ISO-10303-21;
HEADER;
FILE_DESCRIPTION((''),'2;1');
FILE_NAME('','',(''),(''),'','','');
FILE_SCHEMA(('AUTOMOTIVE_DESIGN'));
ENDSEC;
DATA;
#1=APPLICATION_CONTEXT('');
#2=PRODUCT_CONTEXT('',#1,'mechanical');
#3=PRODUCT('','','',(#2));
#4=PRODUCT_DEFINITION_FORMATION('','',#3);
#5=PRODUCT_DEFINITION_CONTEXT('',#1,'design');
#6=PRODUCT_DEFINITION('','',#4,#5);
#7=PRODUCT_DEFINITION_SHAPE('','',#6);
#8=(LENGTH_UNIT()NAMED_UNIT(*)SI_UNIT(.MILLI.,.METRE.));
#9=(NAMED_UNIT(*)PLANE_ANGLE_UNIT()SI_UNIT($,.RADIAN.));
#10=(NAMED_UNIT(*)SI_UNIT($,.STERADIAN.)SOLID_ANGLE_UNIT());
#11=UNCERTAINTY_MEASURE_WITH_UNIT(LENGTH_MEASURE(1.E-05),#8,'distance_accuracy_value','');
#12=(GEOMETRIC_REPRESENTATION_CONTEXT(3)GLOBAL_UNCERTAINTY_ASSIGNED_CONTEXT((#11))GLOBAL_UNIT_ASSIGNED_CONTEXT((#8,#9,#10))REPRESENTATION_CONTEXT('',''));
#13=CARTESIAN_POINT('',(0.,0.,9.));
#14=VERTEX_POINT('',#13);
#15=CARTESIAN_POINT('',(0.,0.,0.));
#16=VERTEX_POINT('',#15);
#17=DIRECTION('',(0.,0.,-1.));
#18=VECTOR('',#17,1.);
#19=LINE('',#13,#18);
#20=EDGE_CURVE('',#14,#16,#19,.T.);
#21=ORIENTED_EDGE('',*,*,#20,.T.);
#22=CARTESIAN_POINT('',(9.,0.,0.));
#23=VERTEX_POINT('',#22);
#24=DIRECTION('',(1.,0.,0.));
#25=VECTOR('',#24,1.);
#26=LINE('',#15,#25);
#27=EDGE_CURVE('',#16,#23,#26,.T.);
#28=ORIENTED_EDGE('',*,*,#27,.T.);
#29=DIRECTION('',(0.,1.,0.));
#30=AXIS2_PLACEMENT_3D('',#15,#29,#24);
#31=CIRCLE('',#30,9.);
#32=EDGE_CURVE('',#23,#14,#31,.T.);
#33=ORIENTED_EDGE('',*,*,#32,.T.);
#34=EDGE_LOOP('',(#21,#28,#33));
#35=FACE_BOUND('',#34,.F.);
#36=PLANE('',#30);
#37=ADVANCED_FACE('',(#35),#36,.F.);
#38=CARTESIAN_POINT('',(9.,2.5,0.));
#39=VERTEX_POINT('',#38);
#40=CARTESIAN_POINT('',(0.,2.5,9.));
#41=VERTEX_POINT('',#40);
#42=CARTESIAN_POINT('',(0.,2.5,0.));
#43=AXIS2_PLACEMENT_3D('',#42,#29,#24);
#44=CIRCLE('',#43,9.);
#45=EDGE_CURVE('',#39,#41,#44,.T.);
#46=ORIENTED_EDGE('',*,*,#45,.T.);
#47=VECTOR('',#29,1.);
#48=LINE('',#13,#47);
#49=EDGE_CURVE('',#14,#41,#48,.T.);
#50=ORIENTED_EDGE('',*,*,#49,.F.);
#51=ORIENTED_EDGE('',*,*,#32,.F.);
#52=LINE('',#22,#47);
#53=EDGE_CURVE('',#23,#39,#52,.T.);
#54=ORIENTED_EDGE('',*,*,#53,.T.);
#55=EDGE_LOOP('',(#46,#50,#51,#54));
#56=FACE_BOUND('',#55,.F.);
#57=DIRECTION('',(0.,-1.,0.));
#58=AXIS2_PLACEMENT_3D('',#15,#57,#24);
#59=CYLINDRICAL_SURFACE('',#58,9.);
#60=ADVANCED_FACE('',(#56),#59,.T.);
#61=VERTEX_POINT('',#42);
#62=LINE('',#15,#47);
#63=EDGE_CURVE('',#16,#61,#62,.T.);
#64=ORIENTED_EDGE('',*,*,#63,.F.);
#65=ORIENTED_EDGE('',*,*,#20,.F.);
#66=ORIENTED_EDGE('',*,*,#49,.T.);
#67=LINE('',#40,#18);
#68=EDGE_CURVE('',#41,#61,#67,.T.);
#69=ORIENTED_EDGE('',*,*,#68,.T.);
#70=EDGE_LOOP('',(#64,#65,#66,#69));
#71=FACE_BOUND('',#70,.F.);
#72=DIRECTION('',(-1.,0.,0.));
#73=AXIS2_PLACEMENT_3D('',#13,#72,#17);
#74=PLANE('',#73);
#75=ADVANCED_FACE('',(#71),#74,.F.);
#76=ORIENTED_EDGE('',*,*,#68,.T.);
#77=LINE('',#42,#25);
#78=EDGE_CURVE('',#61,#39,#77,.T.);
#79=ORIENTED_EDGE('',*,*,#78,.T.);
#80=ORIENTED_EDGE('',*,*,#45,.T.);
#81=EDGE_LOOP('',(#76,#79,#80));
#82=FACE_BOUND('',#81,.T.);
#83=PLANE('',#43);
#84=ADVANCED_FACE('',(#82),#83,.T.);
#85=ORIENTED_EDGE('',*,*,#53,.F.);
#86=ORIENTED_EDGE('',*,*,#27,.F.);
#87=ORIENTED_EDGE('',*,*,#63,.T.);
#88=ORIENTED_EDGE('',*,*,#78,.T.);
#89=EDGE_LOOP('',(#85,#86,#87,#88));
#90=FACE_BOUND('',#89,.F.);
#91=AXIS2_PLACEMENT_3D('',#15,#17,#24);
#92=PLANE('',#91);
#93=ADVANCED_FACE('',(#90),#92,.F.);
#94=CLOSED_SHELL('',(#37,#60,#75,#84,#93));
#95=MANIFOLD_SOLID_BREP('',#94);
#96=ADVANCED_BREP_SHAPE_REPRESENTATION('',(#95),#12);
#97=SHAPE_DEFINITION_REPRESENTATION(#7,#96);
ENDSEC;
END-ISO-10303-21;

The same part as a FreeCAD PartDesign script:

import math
import FreeCAD as App
import Part
import Sketcher
from FreeCAD import Vector
Q = App.Units.Quantity

doc = App.newDocument("Part")
body = doc.addObject("PartDesign::Body", "Body")

sketch1 = doc.addObject("Sketcher::SketchObject", "Sketch")
body.addObject(sketch1)
sketch1.AttachmentSupport = (doc.XZ_Plane, [""])
sketch1.MapMode = "FlatFace"
sketch1.addGeometry(Part.LineSegment(Vector(0, 9, 0), Vector(0, 0, 0)), False)
sketch1.addGeometry(Part.LineSegment(Vector(0, 0, 0), Vector(9, 0, 0)), False)
sketch1.addGeometry(Part.ArcOfCircle(Part.Circle(Vector(0, 0, 0), Vector(0, 0, 1), 9), math.radians(90), math.radians(360)), False)
sketch1.addConstraint(Sketcher.Constraint("Coincident", 0, 2, 1, 1))
sketch1.addConstraint(Sketcher.Constraint("Coincident", 1, 2, 2, 2))
sketch1.addConstraint(Sketcher.Constraint("Coincident", 2, 1, 0, 1))
sketch1.addConstraint(Sketcher.Constraint("Vertical", 0))
sketch1.addConstraint(Sketcher.Constraint("Horizontal", 1))
sketch1.addConstraint(Sketcher.Constraint("Coincident", 2, 3, -1, 1))
sketch1.addConstraint(Sketcher.Constraint("Coincident", 0, 2, -1, 1))
sketch1.addConstraint(Sketcher.Constraint("Radius", 2, Q("9 mm")))
pad1 = doc.addObject("PartDesign::Pad", "Pad")
body.addObject(pad1)
pad1.Profile = sketch1
pad1.Length = 2.5
pad1.Reversed = True

doc.recompute()
